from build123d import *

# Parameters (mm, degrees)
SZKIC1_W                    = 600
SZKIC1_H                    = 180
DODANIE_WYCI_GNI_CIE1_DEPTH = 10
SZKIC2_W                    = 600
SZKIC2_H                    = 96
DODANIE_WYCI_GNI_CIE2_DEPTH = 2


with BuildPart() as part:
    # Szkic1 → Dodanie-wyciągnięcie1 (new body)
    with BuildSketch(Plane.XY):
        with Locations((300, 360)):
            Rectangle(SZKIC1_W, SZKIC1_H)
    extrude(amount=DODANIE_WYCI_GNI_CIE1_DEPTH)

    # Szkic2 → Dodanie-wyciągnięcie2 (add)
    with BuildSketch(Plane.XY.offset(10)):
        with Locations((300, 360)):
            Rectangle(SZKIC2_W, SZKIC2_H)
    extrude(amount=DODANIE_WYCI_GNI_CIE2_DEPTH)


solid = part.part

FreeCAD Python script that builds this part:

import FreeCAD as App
import Part
import Sketcher
from FreeCAD import Vector

doc = App.newDocument("Part")
body = doc.addObject("PartDesign::Body", "Body")

# Sketch on XY plane
sketch1 = body.newObject("Sketcher::SketchObject", "Sketch")
sketch1.AttachmentSupport = (doc.getObject("XY_Plane"), [""])
sketch1.MapMode = "FlatFace"
sketch1.addGeometry(Part.LineSegment(Vector(0, 450, 0), Vector(0, 270, 0)), False)
sketch1.addGeometry(Part.LineSegment(Vector(0, 270, 0), Vector(600, 270, 0)), False)
sketch1.addGeometry(Part.LineSegment(Vector(600, 270, 0), Vector(600, 450, 0)), False)
sketch1.addGeometry(Part.LineSegment(Vector(600, 450, 0), Vector(0, 450, 0)), False)
sketch1.addConstraint(Sketcher.Constraint("Coincident", 0, 2, 1, 1))
sketch1.addConstraint(Sketcher.Constraint("Coincident", 1, 2, 2, 1))
sketch1.addConstraint(Sketcher.Constraint("Coincident", 2, 2, 3, 1))
sketch1.addConstraint(Sketcher.Constraint("Coincident", 3, 2, 0, 1))
sketch1.addConstraint(Sketcher.Constraint("Vertical", 0))
sketch1.addConstraint(Sketcher.Constraint("Horizontal", 1))
sketch1.addConstraint(Sketcher.Constraint("Vertical", 2))
sketch1.addConstraint(Sketcher.Constraint("Horizontal", 3))
sketch1.addConstraint(Sketcher.Constraint("PointOnObject", 0, 2, -2))
sketch1.addConstraint(Sketcher.Constraint("DistanceX", 1, 1, 1, 2, 600.0))
sketch1.addConstraint(Sketcher.Constraint("DistanceY", 0, 2, 0, 1, 180.0))
sketch1.addConstraint(Sketcher.Constraint("DistanceY", -1, 1, 0, 2, 270.0))
pad1 = body.newObject("PartDesign::Pad", "Pad")
pad1.Profile = sketch1
pad1.Length = 10

# Sketch on XY plane
sketch2 = body.newObject("Sketcher::SketchObject", "Sketch001")
sketch2.AttachmentSupport = (doc.getObject("XY_Plane"), [""])
sketch2.MapMode = "FlatFace"
sketch2.AttachmentOffset = App.Placement(Vector(0, 0, 10), App.Rotation())
sketch2.addGeometry(Part.LineSegment(Vector(0, 408, 0), Vector(0, 312, 0)), False)
sketch2.addGeometry(Part.LineSegment(Vector(0, 312, 0), Vector(600, 312, 0)), False)
sketch2.addGeometry(Part.LineSegment(Vector(600, 312, 0), Vector(600, 408, 0)), False)
sketch2.addGeometry(Part.LineSegment(Vector(600, 408, 0), Vector(0, 408, 0)), False)
sketch2.addConstraint(Sketcher.Constraint("Coincident", 0, 2, 1, 1))
sketch2.addConstraint(Sketcher.Constraint("Coincident", 1, 2, 2, 1))
sketch2.addConstraint(Sketcher.Constraint("Coincident", 2, 2, 3, 1))
sketch2.addConstraint(Sketcher.Constraint("Coincident", 3, 2, 0, 1))
sketch2.addConstraint(Sketcher.Constraint("Vertical", 0))
sketch2.addConstraint(Sketcher.Constraint("Horizontal", 1))
sketch2.addConstraint(Sketcher.Constraint("Vertical", 2))
sketch2.addConstraint(Sketcher.Constraint("Horizontal", 3))
sketch2.addConstraint(Sketcher.Constraint("PointOnObject", 0, 2, -2))
sketch2.addConstraint(Sketcher.Constraint("DistanceX", 1, 1, 1, 2, 600.0))
sketch2.addConstraint(Sketcher.Constraint("DistanceY", 0, 2, 0, 1, 96.0))
sketch2.addConstraint(Sketcher.Constraint("DistanceY", -1, 1, 0, 2, 312.0))
pad2 = body.newObject("PartDesign::Pad", "Pad001")
pad2.Profile = sketch2
pad2.Length = 2

doc.recompute()
